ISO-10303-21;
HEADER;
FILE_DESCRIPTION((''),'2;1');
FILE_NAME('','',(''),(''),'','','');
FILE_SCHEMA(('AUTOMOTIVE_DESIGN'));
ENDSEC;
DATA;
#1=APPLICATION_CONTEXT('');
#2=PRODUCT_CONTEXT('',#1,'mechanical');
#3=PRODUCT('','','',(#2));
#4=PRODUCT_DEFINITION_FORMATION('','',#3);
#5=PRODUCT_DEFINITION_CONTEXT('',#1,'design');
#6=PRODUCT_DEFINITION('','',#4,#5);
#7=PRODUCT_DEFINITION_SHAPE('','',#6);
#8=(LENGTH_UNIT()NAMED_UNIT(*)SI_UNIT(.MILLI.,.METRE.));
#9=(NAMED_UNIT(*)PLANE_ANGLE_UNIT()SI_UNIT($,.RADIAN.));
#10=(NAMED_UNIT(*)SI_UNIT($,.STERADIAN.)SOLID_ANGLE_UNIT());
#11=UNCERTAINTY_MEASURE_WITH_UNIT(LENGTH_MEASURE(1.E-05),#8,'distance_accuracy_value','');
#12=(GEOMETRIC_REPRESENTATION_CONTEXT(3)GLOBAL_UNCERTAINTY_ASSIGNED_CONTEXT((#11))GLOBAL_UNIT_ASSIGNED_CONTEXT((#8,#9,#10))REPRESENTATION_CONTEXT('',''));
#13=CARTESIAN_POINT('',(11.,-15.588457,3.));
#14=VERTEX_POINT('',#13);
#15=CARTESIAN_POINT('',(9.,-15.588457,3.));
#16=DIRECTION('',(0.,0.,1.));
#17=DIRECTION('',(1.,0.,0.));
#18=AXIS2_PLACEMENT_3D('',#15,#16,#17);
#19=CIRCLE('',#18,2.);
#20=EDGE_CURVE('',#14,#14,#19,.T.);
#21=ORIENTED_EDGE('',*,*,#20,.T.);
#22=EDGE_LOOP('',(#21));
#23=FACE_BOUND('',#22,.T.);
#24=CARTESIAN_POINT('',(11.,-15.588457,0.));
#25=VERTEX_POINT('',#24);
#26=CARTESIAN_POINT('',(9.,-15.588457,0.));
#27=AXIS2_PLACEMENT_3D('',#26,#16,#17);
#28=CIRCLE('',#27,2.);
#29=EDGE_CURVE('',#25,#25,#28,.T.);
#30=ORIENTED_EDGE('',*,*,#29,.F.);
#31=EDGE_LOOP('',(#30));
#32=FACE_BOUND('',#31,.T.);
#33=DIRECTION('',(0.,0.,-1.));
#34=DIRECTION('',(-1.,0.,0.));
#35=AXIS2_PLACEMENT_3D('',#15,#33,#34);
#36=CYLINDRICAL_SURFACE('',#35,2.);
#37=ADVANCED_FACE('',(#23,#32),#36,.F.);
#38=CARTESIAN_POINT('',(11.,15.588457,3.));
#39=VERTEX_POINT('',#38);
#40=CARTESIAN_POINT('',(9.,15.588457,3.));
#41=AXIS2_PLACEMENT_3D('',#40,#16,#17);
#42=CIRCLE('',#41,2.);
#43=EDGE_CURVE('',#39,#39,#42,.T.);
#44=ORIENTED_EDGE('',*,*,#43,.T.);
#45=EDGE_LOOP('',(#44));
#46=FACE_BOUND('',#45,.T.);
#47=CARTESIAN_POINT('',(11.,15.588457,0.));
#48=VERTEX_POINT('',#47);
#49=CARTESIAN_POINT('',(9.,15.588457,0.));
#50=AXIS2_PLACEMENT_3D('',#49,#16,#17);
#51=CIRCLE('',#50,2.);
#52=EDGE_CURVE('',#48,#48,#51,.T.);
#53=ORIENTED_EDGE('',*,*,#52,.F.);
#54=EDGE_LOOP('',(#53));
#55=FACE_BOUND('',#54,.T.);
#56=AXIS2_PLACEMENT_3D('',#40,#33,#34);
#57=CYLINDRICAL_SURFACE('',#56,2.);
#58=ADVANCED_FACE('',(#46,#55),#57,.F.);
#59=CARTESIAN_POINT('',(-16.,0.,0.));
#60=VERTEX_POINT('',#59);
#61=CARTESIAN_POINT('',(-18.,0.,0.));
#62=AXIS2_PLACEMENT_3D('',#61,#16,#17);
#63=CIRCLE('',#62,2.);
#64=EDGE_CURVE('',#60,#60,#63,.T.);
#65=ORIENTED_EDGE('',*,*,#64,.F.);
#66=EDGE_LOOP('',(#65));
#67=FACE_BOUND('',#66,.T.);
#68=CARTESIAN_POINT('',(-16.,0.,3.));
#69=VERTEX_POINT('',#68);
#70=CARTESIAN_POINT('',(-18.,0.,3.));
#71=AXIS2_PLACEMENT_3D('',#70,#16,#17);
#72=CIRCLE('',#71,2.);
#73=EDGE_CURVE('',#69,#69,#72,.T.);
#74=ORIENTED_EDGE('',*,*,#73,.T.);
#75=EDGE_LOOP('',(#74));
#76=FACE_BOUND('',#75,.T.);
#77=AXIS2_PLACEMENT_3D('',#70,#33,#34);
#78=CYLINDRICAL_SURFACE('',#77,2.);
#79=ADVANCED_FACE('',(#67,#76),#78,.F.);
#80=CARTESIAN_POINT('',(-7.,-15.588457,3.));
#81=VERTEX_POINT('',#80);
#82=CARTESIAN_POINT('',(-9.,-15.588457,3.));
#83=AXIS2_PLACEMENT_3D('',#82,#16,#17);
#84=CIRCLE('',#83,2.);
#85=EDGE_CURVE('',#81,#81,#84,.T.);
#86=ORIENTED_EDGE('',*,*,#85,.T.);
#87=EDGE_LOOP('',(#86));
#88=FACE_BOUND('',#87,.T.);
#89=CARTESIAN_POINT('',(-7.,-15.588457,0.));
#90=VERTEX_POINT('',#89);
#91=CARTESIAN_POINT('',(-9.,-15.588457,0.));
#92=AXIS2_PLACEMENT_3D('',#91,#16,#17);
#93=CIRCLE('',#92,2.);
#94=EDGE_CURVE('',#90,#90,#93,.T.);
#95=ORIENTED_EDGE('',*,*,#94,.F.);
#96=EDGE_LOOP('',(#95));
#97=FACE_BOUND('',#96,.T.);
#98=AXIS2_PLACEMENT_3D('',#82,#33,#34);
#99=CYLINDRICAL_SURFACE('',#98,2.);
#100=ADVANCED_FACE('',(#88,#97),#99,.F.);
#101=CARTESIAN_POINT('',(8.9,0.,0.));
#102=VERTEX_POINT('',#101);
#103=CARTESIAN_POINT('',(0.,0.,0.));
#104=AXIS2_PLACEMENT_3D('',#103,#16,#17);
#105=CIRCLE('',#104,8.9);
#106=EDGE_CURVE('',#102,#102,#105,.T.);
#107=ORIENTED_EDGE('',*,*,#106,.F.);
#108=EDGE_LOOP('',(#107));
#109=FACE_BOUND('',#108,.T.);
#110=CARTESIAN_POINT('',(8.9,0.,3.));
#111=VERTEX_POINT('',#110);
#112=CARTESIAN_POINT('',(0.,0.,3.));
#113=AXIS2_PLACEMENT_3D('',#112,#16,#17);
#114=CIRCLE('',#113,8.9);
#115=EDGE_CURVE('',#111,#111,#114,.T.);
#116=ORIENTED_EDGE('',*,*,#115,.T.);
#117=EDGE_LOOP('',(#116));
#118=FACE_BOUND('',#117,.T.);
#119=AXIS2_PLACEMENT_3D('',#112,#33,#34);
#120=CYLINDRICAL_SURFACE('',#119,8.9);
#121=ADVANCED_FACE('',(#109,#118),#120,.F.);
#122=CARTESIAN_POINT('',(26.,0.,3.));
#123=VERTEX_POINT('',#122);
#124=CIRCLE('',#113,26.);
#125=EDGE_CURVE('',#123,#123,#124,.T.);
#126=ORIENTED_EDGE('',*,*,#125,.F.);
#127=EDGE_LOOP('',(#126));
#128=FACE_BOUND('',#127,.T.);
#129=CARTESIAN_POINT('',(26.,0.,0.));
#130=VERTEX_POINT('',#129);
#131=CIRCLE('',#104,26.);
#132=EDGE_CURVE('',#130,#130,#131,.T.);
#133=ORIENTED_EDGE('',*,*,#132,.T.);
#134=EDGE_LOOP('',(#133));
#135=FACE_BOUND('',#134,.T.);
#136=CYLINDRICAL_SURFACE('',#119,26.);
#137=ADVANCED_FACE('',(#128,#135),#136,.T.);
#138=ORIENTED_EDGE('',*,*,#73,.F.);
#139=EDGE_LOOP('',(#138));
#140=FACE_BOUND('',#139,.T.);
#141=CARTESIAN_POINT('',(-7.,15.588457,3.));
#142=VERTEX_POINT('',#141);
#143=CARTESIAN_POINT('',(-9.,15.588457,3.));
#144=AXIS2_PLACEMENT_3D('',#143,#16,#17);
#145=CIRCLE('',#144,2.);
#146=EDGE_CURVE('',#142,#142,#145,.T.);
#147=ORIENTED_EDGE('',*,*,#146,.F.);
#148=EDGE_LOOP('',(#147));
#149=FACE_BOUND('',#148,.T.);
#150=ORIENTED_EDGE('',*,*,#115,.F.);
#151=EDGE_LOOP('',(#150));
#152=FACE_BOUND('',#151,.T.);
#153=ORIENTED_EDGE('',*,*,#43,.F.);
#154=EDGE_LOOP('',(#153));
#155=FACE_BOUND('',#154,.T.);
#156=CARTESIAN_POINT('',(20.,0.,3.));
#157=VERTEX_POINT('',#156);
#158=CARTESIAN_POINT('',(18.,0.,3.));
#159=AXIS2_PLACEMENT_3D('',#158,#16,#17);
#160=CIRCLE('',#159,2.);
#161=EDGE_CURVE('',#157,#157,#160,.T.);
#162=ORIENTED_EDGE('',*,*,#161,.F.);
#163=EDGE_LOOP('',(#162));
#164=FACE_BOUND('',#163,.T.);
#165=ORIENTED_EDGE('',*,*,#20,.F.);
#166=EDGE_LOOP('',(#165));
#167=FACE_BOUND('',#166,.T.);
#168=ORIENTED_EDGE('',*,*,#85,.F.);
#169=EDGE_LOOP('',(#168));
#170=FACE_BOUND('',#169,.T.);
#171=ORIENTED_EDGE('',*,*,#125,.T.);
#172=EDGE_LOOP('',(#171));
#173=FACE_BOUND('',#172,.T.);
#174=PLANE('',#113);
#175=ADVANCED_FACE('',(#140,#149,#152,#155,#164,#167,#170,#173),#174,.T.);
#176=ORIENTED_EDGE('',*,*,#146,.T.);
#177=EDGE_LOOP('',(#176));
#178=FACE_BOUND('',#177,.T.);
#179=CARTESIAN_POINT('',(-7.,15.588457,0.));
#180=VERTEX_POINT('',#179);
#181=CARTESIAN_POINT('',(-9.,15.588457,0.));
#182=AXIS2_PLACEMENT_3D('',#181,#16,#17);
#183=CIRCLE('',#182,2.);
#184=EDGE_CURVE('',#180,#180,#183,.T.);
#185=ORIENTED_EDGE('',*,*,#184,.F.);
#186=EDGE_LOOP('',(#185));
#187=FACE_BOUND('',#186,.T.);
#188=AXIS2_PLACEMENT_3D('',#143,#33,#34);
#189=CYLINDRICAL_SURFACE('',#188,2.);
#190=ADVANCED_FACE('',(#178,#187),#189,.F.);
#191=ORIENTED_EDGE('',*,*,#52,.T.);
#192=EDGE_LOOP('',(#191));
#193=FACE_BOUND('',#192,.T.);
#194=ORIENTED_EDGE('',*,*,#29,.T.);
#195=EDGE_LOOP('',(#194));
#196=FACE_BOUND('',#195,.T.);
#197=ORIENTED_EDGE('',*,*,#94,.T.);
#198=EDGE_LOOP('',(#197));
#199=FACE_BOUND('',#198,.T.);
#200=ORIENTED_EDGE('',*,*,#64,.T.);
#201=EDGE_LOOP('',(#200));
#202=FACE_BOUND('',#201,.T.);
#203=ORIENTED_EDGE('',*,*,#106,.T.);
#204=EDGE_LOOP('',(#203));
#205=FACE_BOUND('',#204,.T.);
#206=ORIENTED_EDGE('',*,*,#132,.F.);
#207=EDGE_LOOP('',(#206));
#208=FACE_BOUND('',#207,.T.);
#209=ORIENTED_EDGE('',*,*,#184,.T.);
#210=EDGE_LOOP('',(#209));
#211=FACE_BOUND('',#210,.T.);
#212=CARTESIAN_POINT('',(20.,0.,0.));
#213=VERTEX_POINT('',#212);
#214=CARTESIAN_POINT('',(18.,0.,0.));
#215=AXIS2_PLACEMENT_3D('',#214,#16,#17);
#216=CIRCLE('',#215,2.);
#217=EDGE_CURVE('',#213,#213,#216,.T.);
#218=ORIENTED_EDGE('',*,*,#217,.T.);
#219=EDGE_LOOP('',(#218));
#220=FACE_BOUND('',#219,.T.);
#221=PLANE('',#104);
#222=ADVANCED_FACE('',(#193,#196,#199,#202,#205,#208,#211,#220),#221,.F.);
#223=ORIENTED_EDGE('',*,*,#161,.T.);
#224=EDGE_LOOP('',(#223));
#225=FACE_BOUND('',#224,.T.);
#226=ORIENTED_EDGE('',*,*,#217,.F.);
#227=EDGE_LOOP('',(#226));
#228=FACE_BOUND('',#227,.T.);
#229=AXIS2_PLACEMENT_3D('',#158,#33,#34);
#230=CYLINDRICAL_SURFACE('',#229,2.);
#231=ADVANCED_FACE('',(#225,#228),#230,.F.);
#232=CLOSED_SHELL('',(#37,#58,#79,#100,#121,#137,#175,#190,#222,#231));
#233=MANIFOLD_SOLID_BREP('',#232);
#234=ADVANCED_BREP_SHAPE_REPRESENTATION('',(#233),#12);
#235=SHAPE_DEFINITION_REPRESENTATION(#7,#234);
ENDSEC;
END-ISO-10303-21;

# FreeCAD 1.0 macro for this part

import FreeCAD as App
import Part
import Sketcher
from FreeCAD import Vector
Q = App.Units.Quantity

doc = App.newDocument("Part")
body = doc.addObject("PartDesign::Body", "Body")

# Sketch on XY plane
sketch1 = body.newObject("Sketcher::SketchObject", "Sketch")
sketch1.AttachmentSupport = (doc.getObject("XY_Plane"), [""])
sketch1.MapMode = "FlatFace"
sketch1.addGeometry(Part.Circle(Vector(0, 0, 0), Vector(0, 0, 1), 26), False)
sketch1.addGeometry(Part.Circle(Vector(-9, -15.588457, 0), Vector(0, 0, 1), 2), False)
sketch1.addGeometry(Part.Circle(Vector(9, -15.588457, 0), Vector(0, 0, 1), 2), False)
sketch1.addGeometry(Part.Circle(Vector(-18, 0, 0), Vector(0, 0, 1), 2), False)
sketch1.addGeometry(Part.Circle(Vector(-9, 15.588457, 0), Vector(0, 0, 1), 2), False)
sketch1.addGeometry(Part.Circle(Vector(0, 0, 0), Vector(0, 0, 1), 8.9), False)
sketch1.addGeometry(Part.Circle(Vector(18, 0, 0), Vector(0, 0, 1), 2), False)
sketch1.addGeometry(Part.Circle(Vector(9, 15.588457, 0), Vector(0, 0, 1), 2), False)
sketch1.addConstraint(Sketcher.Constraint("Coincident", 0, 3, -1, 1))
sketch1.addConstraint(Sketcher.Constraint("Coincident", 5, 3, -1, 1))
sketch1.addConstraint(Sketcher.Constraint("Equal", 1, 2))
sketch1.addConstraint(Sketcher.Constraint("Equal", 2, 3))
sketch1.addConstraint(Sketcher.Constraint("Equal", 3, 4))
sketch1.addConstraint(Sketcher.Constraint("Equal", 4, 6))
sketch1.addConstraint(Sketcher.Constraint("Equal", 6, 7))
sketch1.addConstraint(Sketcher.Constraint("Symmetric", 2, 3, 4, 3, -1, 1))
sketch1.addConstraint(Sketcher.Constraint("Symmetric", 3, 3, 6, 3, -1, 1))
sketch1.addConstraint(Sketcher.Constraint("Symmetric", 1, 3, 7, 3, -1, 1))
sketch1.addConstraint(Sketcher.Constraint("Symmetric", 1, 3, 2, 3, -2))
sketch1.addConstraint(Sketcher.Constraint("PointOnObject", 3, 3, -1))
sketch1.addConstraint(Sketcher.Constraint("Diameter", 0, Q("52 mm")))
sketch1.addConstraint(Sketcher.Constraint("Diameter", 1, Q("4 mm")))
sketch1.addConstraint(Sketcher.Constraint("Diameter", 5, Q("17.8 mm")))
sketch1.addConstraint(Sketcher.Constraint("DistanceX", 1, 3, -1, 1, Q("9 mm")))
sketch1.addConstraint(Sketcher.Constraint("DistanceX", 3, 3, -1, 1, Q("18 mm")))
sketch1.addConstraint(Sketcher.Constraint("DistanceY", 1, 3, -1, 1, Q("15.588457 mm")))
pad1 = body.newObject("PartDesign::Pad", "Pad")
pad1.Profile = sketch1
pad1.Length = 3

doc.recompute()
